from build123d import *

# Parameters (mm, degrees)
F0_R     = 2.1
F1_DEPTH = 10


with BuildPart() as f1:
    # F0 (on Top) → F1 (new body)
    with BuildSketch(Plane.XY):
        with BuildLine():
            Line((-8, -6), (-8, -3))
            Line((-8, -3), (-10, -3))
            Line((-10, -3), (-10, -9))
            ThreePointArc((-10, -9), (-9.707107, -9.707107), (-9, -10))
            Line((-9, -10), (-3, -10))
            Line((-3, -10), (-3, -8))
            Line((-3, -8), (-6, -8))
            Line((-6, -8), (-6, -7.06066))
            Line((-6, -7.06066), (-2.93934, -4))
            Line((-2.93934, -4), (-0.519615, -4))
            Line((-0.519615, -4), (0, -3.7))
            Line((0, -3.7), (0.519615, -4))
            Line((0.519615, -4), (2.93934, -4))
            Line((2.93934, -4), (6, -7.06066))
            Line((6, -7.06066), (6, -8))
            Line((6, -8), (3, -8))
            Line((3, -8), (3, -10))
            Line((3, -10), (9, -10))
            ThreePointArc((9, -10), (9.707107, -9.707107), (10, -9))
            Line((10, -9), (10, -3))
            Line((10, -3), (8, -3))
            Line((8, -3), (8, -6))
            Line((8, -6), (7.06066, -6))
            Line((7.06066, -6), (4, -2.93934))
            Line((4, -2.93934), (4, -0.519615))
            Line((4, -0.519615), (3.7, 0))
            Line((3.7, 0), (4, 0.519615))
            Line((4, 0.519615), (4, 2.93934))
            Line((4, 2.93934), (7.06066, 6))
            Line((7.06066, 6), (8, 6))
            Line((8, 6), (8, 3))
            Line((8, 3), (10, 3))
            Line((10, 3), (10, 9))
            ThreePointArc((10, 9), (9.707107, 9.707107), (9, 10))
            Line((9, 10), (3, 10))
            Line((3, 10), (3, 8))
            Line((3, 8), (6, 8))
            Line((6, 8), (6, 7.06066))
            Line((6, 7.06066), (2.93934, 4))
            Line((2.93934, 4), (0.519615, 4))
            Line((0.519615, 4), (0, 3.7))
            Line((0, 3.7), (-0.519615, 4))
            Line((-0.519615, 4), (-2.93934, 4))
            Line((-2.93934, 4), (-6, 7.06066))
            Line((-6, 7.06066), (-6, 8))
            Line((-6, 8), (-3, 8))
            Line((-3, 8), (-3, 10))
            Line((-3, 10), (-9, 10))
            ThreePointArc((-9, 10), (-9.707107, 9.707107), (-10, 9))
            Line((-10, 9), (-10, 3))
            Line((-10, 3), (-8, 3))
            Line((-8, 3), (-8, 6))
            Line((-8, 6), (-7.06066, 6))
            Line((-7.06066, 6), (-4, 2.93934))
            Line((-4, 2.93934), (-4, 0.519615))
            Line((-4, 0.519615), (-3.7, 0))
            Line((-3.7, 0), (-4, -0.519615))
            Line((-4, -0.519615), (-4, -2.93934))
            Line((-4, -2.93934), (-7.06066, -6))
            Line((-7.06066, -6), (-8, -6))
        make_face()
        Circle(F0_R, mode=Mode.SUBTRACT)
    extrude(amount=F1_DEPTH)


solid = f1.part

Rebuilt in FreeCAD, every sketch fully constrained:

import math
import FreeCAD as App
import Part
import Sketcher
from FreeCAD import Vector
Q = App.Units.Quantity

doc = App.newDocument("Part")
params = doc.addObject("Spreadsheet::Sheet", "Params")
for row, (alias, value) in enumerate([
    ("sketch1_radius", "0.999999 mm"),
    ("sketch1_diameter", "4.2 mm"),
    ("sketch1_width", "2 mm"),
    ("sketch1_width2", "6 mm"),
    ("sketch1_width3", "3 mm"),
    ("pad1_length", "10 mm"),
], start=1):
    params.set(f"A{row}", alias)
    params.set(f"B{row}", "=" + value)
    params.setAlias(f"B{row}", alias)

body = doc.addObject("PartDesign::Body", "Body")

# Sketch on XY plane
sketch1 = doc.addObject("Sketcher::SketchObject", "Sketch")
body.addObject(sketch1)
sketch1.AttachmentSupport = (doc.XY_Plane, [""])
sketch1.MapMode = "FlatFace"
sketch1.addGeometry(Part.LineSegment(Vector(-8, -6, 0), Vector(-8, -3, 0)), False)
sketch1.addGeometry(Part.LineSegment(Vector(-8, -3, 0), Vector(-10, -3, 0)), False)
sketch1.addGeometry(Part.LineSegment(Vector(-10, -3, 0), Vector(-10, -9, 0)), False)
sketch1.addGeometry(Part.ArcOfCircle(Part.Circle(Vector(-9, -9, 0), Vector(0, 0, 1), 1), math.radians(180), math.radians(270)), False)
sketch1.addGeometry(Part.LineSegment(Vector(-9, -10, 0), Vector(-3, -10, 0)), False)
sketch1.addGeometry(Part.LineSegment(Vector(-3, -10, 0), Vector(-3, -8, 0)), False)
sketch1.addGeometry(Part.LineSegment(Vector(-3, -8, 0), Vector(-6, -8, 0)), False)
sketch1.addGeometry(Part.LineSegment(Vector(-6, -8, 0), Vector(-6, -7.1, 0)), False)
sketch1.addGeometry(Part.LineSegment(Vector(-6, -7.1, 0), Vector(-2.9, -4, 0)), False)
sketch1.addGeometry(Part.LineSegment(Vector(-2.9, -4, 0), Vector(-0.5, -4, 0)), False)
sketch1.addGeometry(Part.LineSegment(Vector(-0.5, -4, 0), Vector(0, -3.7, 0)), False)
sketch1.addGeometry(Part.LineSegment(Vector(0, -3.7, 0), Vector(0.5, -4, 0)), False)
sketch1.addGeometry(Part.LineSegment(Vector(0.5, -4, 0), Vector(2.9, -4, 0)), False)
sketch1.addGeometry(Part.LineSegment(Vector(2.9, -4, 0), Vector(6, -7.1, 0)), False)
sketch1.addGeometry(Part.LineSegment(Vector(6, -7.1, 0), Vector(6, -8, 0)), False)
sketch1.addGeometry(Part.LineSegment(Vector(6, -8, 0), Vector(3, -8, 0)), False)
sketch1.addGeometry(Part.LineSegment(Vector(3, -8, 0), Vector(3, -10, 0)), False)
sketch1.addGeometry(Part.LineSegment(Vector(3, -10, 0), Vector(9, -10, 0)), False)
sketch1.addGeometry(Part.ArcOfCircle(Part.Circle(Vector(9, -9, 0), Vector(0, 0, 1), 1), math.radians(-90), math.radians(0)), False)
sketch1.addGeometry(Part.LineSegment(Vector(10, -9, 0), Vector(10, -3, 0)), False)
sketch1.addGeometry(Part.LineSegment(Vector(10, -3, 0), Vector(8, -3, 0)), False)
sketch1.addGeometry(Part.LineSegment(Vector(8, -3, 0), Vector(8, -6, 0)), False)
sketch1.addGeometry(Part.LineSegment(Vector(8, -6, 0), Vector(7.1, -6, 0)), False)
sketch1.addGeometry(Part.LineSegment(Vector(7.1, -6, 0), Vector(4, -2.9, 0)), False)
sketch1.addGeometry(Part.LineSegment(Vector(4, -2.9, 0), Vector(4, -0.5, 0)), False)
sketch1.addGeometry(Part.LineSegment(Vector(4, -0.5, 0), Vector(3.7, 0, 0)), False)
sketch1.addGeometry(Part.LineSegment(Vector(3.7, 0, 0), Vector(4, 0.5, 0)), False)
sketch1.addGeometry(Part.LineSegment(Vector(4, 0.5, 0), Vector(4, 2.9, 0)), False)
sketch1.addGeometry(Part.LineSegment(Vector(4, 2.9, 0), Vector(7.1, 6, 0)), False)
sketch1.addGeometry(Part.LineSegment(Vector(7.1, 6, 0), Vector(8, 6, 0)), False)
sketch1.addGeometry(Part.LineSegment(Vector(8, 6, 0), Vector(8, 3, 0)), False)
sketch1.addGeometry(Part.LineSegment(Vector(8, 3, 0), Vector(10, 3, 0)), False)
sketch1.addGeometry(Part.LineSegment(Vector(10, 3, 0), Vector(10, 9, 0)), False)
sketch1.addGeometry(Part.ArcOfCircle(Part.Circle(Vector(9, 9, 0), Vector(0, 0, 1), 1), math.radians(0), math.radians(90)), False)
sketch1.addGeometry(Part.LineSegment(Vector(9, 10, 0), Vector(3, 10, 0)), False)
sketch1.addGeometry(Part.LineSegment(Vector(3, 10, 0), Vector(3, 8, 0)), False)
sketch1.addGeometry(Part.LineSegment(Vector(3, 8, 0), Vector(6, 8, 0)), False)
sketch1.addGeometry(Part.LineSegment(Vector(6, 8, 0), Vector(6, 7.1, 0)), False)
sketch1.addGeometry(Part.LineSegment(Vector(6, 7.1, 0), Vector(2.9, 4, 0)), False)
sketch1.addGeometry(Part.LineSegment(Vector(2.9, 4, 0), Vector(0.5, 4, 0)), False)
sketch1.addGeometry(Part.LineSegment(Vector(0.5, 4, 0), Vector(0, 3.7, 0)), False)
sketch1.addGeometry(Part.LineSegment(Vector(0, 3.7, 0), Vector(-0.5, 4, 0)), False)
sketch1.addGeometry(Part.LineSegment(Vector(-0.5, 4, 0), Vector(-2.9, 4, 0)), False)
sketch1.addGeometry(Part.LineSegment(Vector(-2.9, 4, 0), Vector(-6, 7.1, 0)), False)
sketch1.addGeometry(Part.LineSegment(Vector(-6, 7.1, 0), Vector(-6, 8, 0)), False)
sketch1.addGeometry(Part.LineSegment(Vector(-6, 8, 0), Vector(-3, 8, 0)), False)
sketch1.addGeometry(Part.LineSegment(Vector(-3, 8, 0), Vector(-3, 10, 0)), False)
sketch1.addGeometry(Part.LineSegment(Vector(-3, 10, 0), Vector(-9, 10, 0)), False)
sketch1.addGeometry(Part.ArcOfCircle(Part.Circle(Vector(-9, 9, 0), Vector(0, 0, 1), 1), math.radians(90), math.radians(180)), False)
sketch1.addGeometry(Part.LineSegment(Vector(-10, 9, 0), Vector(-10, 3, 0)), False)
sketch1.addGeometry(Part.LineSegment(Vector(-10, 3, 0), Vector(-8, 3, 0)), False)
sketch1.addGeometry(Part.LineSegment(Vector(-8, 3, 0), Vector(-8, 6, 0)), False)
sketch1.addGeometry(Part.LineSegment(Vector(-8, 6, 0), Vector(-7.1, 6, 0)), False)
sketch1.addGeometry(Part.LineSegment(Vector(-7.1, 6, 0), Vector(-4, 2.9, 0)), False)
sketch1.addGeometry(Part.LineSegment(Vector(-4, 2.9, 0), Vector(-4, 0.5, 0)), False)
sketch1.addGeometry(Part.LineSegment(Vector(-4, 0.5, 0), Vector(-3.7, 0, 0)), False)
sketch1.addGeometry(Part.LineSegment(Vector(-3.7, 0, 0), Vector(-4, -0.5, 0)), False)
sketch1.addGeometry(Part.LineSegment(Vector(-4, -0.5, 0), Vector(-4, -2.9, 0)), False)
sketch1.addGeometry(Part.LineSegment(Vector(-4, -2.9, 0), Vector(-7.1, -6, 0)), False)
sketch1.addGeometry(Part.LineSegment(Vector(-7.1, -6, 0), Vector(-8, -6, 0)), False)
sketch1.addGeometry(Part.Circle(Vector(0, 0, 0), Vector(0, 0, 1), 2.1), False)
sketch1.addConstraint(Sketcher.Constraint("Coincident", 0, 2, 1, 1))
sketch1.addConstraint(Sketcher.Constraint("Coincident", 1, 2, 2, 1))
sketch1.addConstraint(Sketcher.Constraint("Tangent", 2, 2, 3, 1))
sketch1.addConstraint(Sketcher.Constraint("Tangent", 3, 2, 4, 1))
sketch1.addConstraint(Sketcher.Constraint("Coincident", 4, 2, 5, 1))
sketch1.addConstraint(Sketcher.Constraint("Coincident", 5, 2, 6, 1))
sketch1.addConstraint(Sketcher.Constraint("Coincident", 6, 2, 7, 1))
sketch1.addConstraint(Sketcher.Constraint("Coincident", 7, 2, 8, 1))
sketch1.addConstraint(Sketcher.Constraint("Coincident", 8, 2, 9, 1))
sketch1.addConstraint(Sketcher.Constraint("Coincident", 9, 2, 10, 1))
sketch1.addConstraint(Sketcher.Constraint("Coincident", 10, 2, 11, 1))
sketch1.addConstraint(Sketcher.Constraint("Coincident", 11, 2, 12, 1))
sketch1.addConstraint(Sketcher.Constraint("Coincident", 12, 2, 13, 1))
sketch1.addConstraint(Sketcher.Constraint("Coincident", 13, 2, 14, 1))
sketch1.addConstraint(Sketcher.Constraint("Coincident", 14, 2, 15, 1))
sketch1.addConstraint(Sketcher.Constraint("Coincident", 15, 2, 16, 1))
sketch1.addConstraint(Sketcher.Constraint("Coincident", 16, 2, 17, 1))
sketch1.addConstraint(Sketcher.Constraint("Tangent", 17, 2, 18, 1))
sketch1.addConstraint(Sketcher.Constraint("Tangent", 18, 2, 19, 1))
sketch1.addConstraint(Sketcher.Constraint("Coincident", 19, 2, 20, 1))
sketch1.addConstraint(Sketcher.Constraint("Coincident", 20, 2, 21, 1))
sketch1.addConstraint(Sketcher.Constraint("Coincident", 21, 2, 22, 1))
sketch1.addConstraint(Sketcher.Constraint("Coincident", 22, 2, 23, 1))
sketch1.addConstraint(Sketcher.Constraint("Coincident", 23, 2, 24, 1))
sketch1.addConstraint(Sketcher.Constraint("Coincident", 24, 2, 25, 1))
sketch1.addConstraint(Sketcher.Constraint("Coincident", 25, 2, 26, 1))
sketch1.addConstraint(Sketcher.Constraint("Coincident", 26, 2, 27, 1))
sketch1.addConstraint(Sketcher.Constraint("Coincident", 27, 2, 28, 1))
sketch1.addConstraint(Sketcher.Constraint("Coincident", 28, 2, 29, 1))
sketch1.addConstraint(Sketcher.Constraint("Coincident", 29, 2, 30, 1))
sketch1.addConstraint(Sketcher.Constraint("Coincident", 30, 2, 31, 1))
sketch1.addConstraint(Sketcher.Constraint("Coincident", 31, 2, 32, 1))
sketch1.addConstraint(Sketcher.Constraint("Tangent", 32, 2, 33, 1))
sketch1.addConstraint(Sketcher.Constraint("Tangent", 33, 2, 34, 1))
sketch1.addConstraint(Sketcher.Constraint("Coincident", 34, 2, 35, 1))
sketch1.addConstraint(Sketcher.Constraint("Coincident", 35, 2, 36, 1))
sketch1.addConstraint(Sketcher.Constraint("Coincident", 36, 2, 37, 1))
sketch1.addConstraint(Sketcher.Constraint("Coincident", 37, 2, 38, 1))
sketch1.addConstraint(Sketcher.Constraint("Coincident", 38, 2, 39, 1))
sketch1.addConstraint(Sketcher.Constraint("Coincident", 39, 2, 40, 1))
sketch1.addConstraint(Sketcher.Constraint("Coincident", 40, 2, 41, 1))
sketch1.addConstraint(Sketcher.Constraint("Coincident", 41, 2, 42, 1))
sketch1.addConstraint(Sketcher.Constraint("Coincident", 42, 2, 43, 1))
sketch1.addConstraint(Sketcher.Constraint("Coincident", 43, 2, 44, 1))
sketch1.addConstraint(Sketcher.Constraint("Coincident", 44, 2, 45, 1))
sketch1.addConstraint(Sketcher.Constraint("Coincident", 45, 2, 46, 1))
sketch1.addConstraint(Sketcher.Constraint("Coincident", 46, 2, 47, 1))
sketch1.addConstraint(Sketcher.Constraint("Tangent", 47, 2, 48, 1))
sketch1.addConstraint(Sketcher.Constraint("Tangent", 48, 2, 49, 1))
sketch1.addConstraint(Sketcher.Constraint("Coincident", 49, 2, 50, 1))
sketch1.addConstraint(Sketcher.Constraint("Coincident", 50, 2, 51, 1))
sketch1.addConstraint(Sketcher.Constraint("Coincident", 51, 2, 52, 1))
sketch1.addConstraint(Sketcher.Constraint("Coincident", 52, 2, 53, 1))
sketch1.addConstraint(Sketcher.Constraint("Coincident", 53, 2, 54, 1))
sketch1.addConstraint(Sketcher.Constraint("Coincident", 54, 2, 55, 1))
sketch1.addConstraint(Sketcher.Constraint("Coincident", 55, 2, 56, 1))
sketch1.addConstraint(Sketcher.Constraint("Coincident", 56, 2, 57, 1))
sketch1.addConstraint(Sketcher.Constraint("Coincident", 57, 2, 58, 1))
sketch1.addConstraint(Sketcher.Constraint("Coincident", 58, 2, 59, 1))
sketch1.addConstraint(Sketcher.Constraint("Coincident", 59, 2, 0, 1))
sketch1.addConstraint(Sketcher.Constraint("Vertical", 0))
sketch1.addConstraint(Sketcher.Constraint("Horizontal", 1))
sketch1.addConstraint(Sketcher.Constraint("Vertical", 2))
sketch1.addConstraint(Sketcher.Constraint("Horizontal", 4))
sketch1.addConstraint(Sketcher.Constraint("Vertical", 5))
sketch1.addConstraint(Sketcher.Constraint("Horizontal", 6))
sketch1.addConstraint(Sketcher.Constraint("Vertical", 7))
sketch1.addConstraint(Sketcher.Constraint("Horizontal", 9))
sketch1.addConstraint(Sketcher.Constraint("Horizontal", 12))
sketch1.addConstraint(Sketcher.Constraint("Vertical", 14))
sketch1.addConstraint(Sketcher.Constraint("Horizontal", 15))
sketch1.addConstraint(Sketcher.Constraint("Vertical", 16))
sketch1.addConstraint(Sketcher.Constraint("Horizontal", 17))
sketch1.addConstraint(Sketcher.Constraint("Vertical", 19))
sketch1.addConstraint(Sketcher.Constraint("Horizontal", 20))
sketch1.addConstraint(Sketcher.Constraint("Vertical", 21))
sketch1.addConstraint(Sketcher.Constraint("Horizontal", 22))
sketch1.addConstraint(Sketcher.Constraint("Vertical", 24))
sketch1.addConstraint(Sketcher.Constraint("Vertical", 27))
sketch1.addConstraint(Sketcher.Constraint("Horizontal", 29))
sketch1.addConstraint(Sketcher.Constraint("Vertical", 30))
sketch1.addConstraint(Sketcher.Constraint("Horizontal", 31))
sketch1.addConstraint(Sketcher.Constraint("Vertical", 32))
sketch1.addConstraint(Sketcher.Constraint("Horizontal", 34))
sketch1.addConstraint(Sketcher.Constraint("Vertical", 35))
sketch1.addConstraint(Sketcher.Constraint("Horizontal", 36))
sketch1.addConstraint(Sketcher.Constraint("Vertical", 37))
sketch1.addConstraint(Sketcher.Constraint("Horizontal", 39))
sketch1.addConstraint(Sketcher.Constraint("Horizontal", 42))
sketch1.addConstraint(Sketcher.Constraint("Vertical", 44))
sketch1.addConstraint(Sketcher.Constraint("Horizontal", 45))
sketch1.addConstraint(Sketcher.Constraint("Vertical", 46))
sketch1.addConstraint(Sketcher.Constraint("Horizontal", 47))
sketch1.addConstraint(Sketcher.Constraint("Vertical", 49))
sketch1.addConstraint(Sketcher.Constraint("Horizontal", 50))
sketch1.addConstraint(Sketcher.Constraint("Vertical", 51))
sketch1.addConstraint(Sketcher.Constraint("Horizontal", 52))
sketch1.addConstraint(Sketcher.Constraint("Vertical", 54))
sketch1.addConstraint(Sketcher.Constraint("Vertical", 57))
sketch1.addConstraint(Sketcher.Constraint("Horizontal", 59))
sketch1.addConstraint(Sketcher.Constraint("Coincident", 60, 3, -1, 1))
sketch1.addConstraint(Sketcher.Constraint("Equal", 3, 18))
sketch1.addConstraint(Sketcher.Constraint("Equal", 18, 33))
sketch1.addConstraint(Sketcher.Constraint("Equal", 33, 48))
sketch1.addConstraint(Sketcher.Constraint("Symmetric", 3, 3, 33, 3, -1, 1))
sketch1.addConstraint(Sketcher.Constraint("Symmetric", 18, 3, 48, 3, -1, 1))
sketch1.addConstraint(Sketcher.Constraint("Symmetric", 0, 2, 30, 2, -1, 1))
sketch1.addConstraint(Sketcher.Constraint("Symmetric", 5, 2, 35, 2, -1, 1))
sketch1.addConstraint(Sketcher.Constraint("Symmetric", 7, 2, 37, 2, -1, 1))
sketch1.addConstraint(Sketcher.Constraint("Symmetric", 8, 2, 38, 2, -1, 1))
sketch1.addConstraint(Sketcher.Constraint("Symmetric", 10, 2, 40, 2, -1, 1))
sketch1.addConstraint(Sketcher.Constraint("Symmetric", 11, 2, 41, 2, -1, 1))
sketch1.addConstraint(Sketcher.Constraint("Symmetric", 13, 2, 43, 2, -1, 1))
sketch1.addConstraint(Sketcher.Constraint("Symmetric", 15, 2, 45, 2, -1, 1))
sketch1.addConstraint(Sketcher.Constraint("Symmetric", 20, 2, 50, 2, -1, 1))
sketch1.addConstraint(Sketcher.Constraint("Symmetric", 22, 2, 52, 2, -1, 1))
sketch1.addConstraint(Sketcher.Constraint("Symmetric", 23, 2, 53, 2, -1, 1))
sketch1.addConstraint(Sketcher.Constraint("Symmetric", 25, 2, 55, 2, -1, 1))
sketch1.addConstraint(Sketcher.Constraint("Symmetric", 26, 2, 56, 2, -1, 1))
sketch1.addConstraint(Sketcher.Constraint("Symmetric", 28, 2, 58, 2, -1, 1))
sketch1.addConstraint(Sketcher.Constraint("Symmetric", 3, 3, 18, 3, -2))
sketch1.addConstraint(Sketcher.Constraint("Symmetric", 9, 2, 11, 2, -2))
sketch1.addConstraint(Sketcher.Constraint("Symmetric", 7, 2, 13, 2, -2))
sketch1.addConstraint(Sketcher.Constraint("Symmetric", 5, 2, 15, 2, -2))
sketch1.addConstraint(Sketcher.Constraint("Symmetric", 0, 2, 20, 2, -2))
sketch1.addConstraint(Sketcher.Constraint("Symmetric", 28, 2, 52, 2, -2))
sketch1.addConstraint(Sketcher.Constraint("Symmetric", 27, 2, 53, 2, -2))
sketch1.addConstraint(Sketcher.Constraint("PointOnObject", 10, 2, -2))
sketch1.addConstraint(Sketcher.Constraint("PointOnObject", 25, 2, -1))
sketch1.addConstraint(Sketcher.Constraint("Perpendicular", 8, 13))
sketch1.addConstraint(Sketcher.Constraint("Parallel", 13, 23))
sketch1.addConstraint(Sketcher.Constraint("Perpendicular", 10, 25))
sketch1.addConstraint(Sketcher.Constraint("Perpendicular", 11, 26))
sketch1.addConstraint(Sketcher.Constraint("Perpendicular", 23, 28))
sketch1.addConstraint(Sketcher.Constraint("Perpendicular", 25, 40))
sketch1.addConstraint(Sketcher.Constraint("Perpendicular", 38, 43))
sketch1.addConstraint(Sketcher.Constraint("Perpendicular", 40, 55))
sketch1.addConstraint(Sketcher.Constraint("Perpendicular", 53, 58))
sketch1.addConstraint(Sketcher.Constraint("Equal", 45, 0))
sketch1.addConstraint(Sketcher.Constraint("Equal", 47, 2))
sketch1.addConstraint(Sketcher.Constraint("Equal", 50, 5))
sketch1.addConstraint(Sketcher.Constraint("Equal", 59, 7))
sketch1.addConstraint(Sketcher.Constraint("Equal", 42, 24))
sketch1.addConstraint(Sketcher.Constraint("Equal", 13, 23))
sketch1.addConstraint(Sketcher.Constraint("Equal", 11, 25))
sketch1.addConstraint(Sketcher.Constraint("Radius", 3, 0.999999))
sketch1.addConstraint(Sketcher.Constraint("Diameter", 60, 4.2))
sketch1.addConstraint(Sketcher.Constraint("DistanceX", 1, 2, 1, 1, 2.0))
sketch1.addConstraint(Sketcher.Constraint("DistanceX", 4, 1, 4, 2, 6.0))
sketch1.addConstraint(Sketcher.Constraint("DistanceX", 6, 2, 6, 1, 3.0))
sketch1.addConstraint(Sketcher.Constraint("Angle", 10, Q("30.000012 deg")))
sketch1.addConstraint(Sketcher.Constraint("DistanceX", 3, 3, -1, 1, 9.000001))
sketch1.addConstraint(Sketcher.Constraint("DistanceY", 8, 2, -1, 1, 4.0))
sketch1.addConstraint(Sketcher.Constraint("Distance", 10, 0.6))
sketch1.addConstraint(Sketcher.Constraint("DistanceX", 22, 2, 22, 1, 0.93934))
sketch1.setExpression("Constraints[145]", "Params.sketch1_radius")
sketch1.setExpression("Constraints[146]", "Params.sketch1_diameter")
sketch1.setExpression("Constraints[147]", "Params.sketch1_width")
sketch1.setExpression("Constraints[148]", "Params.sketch1_width2")
sketch1.setExpression("Constraints[149]", "Params.sketch1_width3")
pad1 = doc.addObject("PartDesign::Pad", "Pad")
body.addObject(pad1)
pad1.Profile = sketch1
pad1.setExpression("Length", "Params.pad1_length")

doc.recompute()
